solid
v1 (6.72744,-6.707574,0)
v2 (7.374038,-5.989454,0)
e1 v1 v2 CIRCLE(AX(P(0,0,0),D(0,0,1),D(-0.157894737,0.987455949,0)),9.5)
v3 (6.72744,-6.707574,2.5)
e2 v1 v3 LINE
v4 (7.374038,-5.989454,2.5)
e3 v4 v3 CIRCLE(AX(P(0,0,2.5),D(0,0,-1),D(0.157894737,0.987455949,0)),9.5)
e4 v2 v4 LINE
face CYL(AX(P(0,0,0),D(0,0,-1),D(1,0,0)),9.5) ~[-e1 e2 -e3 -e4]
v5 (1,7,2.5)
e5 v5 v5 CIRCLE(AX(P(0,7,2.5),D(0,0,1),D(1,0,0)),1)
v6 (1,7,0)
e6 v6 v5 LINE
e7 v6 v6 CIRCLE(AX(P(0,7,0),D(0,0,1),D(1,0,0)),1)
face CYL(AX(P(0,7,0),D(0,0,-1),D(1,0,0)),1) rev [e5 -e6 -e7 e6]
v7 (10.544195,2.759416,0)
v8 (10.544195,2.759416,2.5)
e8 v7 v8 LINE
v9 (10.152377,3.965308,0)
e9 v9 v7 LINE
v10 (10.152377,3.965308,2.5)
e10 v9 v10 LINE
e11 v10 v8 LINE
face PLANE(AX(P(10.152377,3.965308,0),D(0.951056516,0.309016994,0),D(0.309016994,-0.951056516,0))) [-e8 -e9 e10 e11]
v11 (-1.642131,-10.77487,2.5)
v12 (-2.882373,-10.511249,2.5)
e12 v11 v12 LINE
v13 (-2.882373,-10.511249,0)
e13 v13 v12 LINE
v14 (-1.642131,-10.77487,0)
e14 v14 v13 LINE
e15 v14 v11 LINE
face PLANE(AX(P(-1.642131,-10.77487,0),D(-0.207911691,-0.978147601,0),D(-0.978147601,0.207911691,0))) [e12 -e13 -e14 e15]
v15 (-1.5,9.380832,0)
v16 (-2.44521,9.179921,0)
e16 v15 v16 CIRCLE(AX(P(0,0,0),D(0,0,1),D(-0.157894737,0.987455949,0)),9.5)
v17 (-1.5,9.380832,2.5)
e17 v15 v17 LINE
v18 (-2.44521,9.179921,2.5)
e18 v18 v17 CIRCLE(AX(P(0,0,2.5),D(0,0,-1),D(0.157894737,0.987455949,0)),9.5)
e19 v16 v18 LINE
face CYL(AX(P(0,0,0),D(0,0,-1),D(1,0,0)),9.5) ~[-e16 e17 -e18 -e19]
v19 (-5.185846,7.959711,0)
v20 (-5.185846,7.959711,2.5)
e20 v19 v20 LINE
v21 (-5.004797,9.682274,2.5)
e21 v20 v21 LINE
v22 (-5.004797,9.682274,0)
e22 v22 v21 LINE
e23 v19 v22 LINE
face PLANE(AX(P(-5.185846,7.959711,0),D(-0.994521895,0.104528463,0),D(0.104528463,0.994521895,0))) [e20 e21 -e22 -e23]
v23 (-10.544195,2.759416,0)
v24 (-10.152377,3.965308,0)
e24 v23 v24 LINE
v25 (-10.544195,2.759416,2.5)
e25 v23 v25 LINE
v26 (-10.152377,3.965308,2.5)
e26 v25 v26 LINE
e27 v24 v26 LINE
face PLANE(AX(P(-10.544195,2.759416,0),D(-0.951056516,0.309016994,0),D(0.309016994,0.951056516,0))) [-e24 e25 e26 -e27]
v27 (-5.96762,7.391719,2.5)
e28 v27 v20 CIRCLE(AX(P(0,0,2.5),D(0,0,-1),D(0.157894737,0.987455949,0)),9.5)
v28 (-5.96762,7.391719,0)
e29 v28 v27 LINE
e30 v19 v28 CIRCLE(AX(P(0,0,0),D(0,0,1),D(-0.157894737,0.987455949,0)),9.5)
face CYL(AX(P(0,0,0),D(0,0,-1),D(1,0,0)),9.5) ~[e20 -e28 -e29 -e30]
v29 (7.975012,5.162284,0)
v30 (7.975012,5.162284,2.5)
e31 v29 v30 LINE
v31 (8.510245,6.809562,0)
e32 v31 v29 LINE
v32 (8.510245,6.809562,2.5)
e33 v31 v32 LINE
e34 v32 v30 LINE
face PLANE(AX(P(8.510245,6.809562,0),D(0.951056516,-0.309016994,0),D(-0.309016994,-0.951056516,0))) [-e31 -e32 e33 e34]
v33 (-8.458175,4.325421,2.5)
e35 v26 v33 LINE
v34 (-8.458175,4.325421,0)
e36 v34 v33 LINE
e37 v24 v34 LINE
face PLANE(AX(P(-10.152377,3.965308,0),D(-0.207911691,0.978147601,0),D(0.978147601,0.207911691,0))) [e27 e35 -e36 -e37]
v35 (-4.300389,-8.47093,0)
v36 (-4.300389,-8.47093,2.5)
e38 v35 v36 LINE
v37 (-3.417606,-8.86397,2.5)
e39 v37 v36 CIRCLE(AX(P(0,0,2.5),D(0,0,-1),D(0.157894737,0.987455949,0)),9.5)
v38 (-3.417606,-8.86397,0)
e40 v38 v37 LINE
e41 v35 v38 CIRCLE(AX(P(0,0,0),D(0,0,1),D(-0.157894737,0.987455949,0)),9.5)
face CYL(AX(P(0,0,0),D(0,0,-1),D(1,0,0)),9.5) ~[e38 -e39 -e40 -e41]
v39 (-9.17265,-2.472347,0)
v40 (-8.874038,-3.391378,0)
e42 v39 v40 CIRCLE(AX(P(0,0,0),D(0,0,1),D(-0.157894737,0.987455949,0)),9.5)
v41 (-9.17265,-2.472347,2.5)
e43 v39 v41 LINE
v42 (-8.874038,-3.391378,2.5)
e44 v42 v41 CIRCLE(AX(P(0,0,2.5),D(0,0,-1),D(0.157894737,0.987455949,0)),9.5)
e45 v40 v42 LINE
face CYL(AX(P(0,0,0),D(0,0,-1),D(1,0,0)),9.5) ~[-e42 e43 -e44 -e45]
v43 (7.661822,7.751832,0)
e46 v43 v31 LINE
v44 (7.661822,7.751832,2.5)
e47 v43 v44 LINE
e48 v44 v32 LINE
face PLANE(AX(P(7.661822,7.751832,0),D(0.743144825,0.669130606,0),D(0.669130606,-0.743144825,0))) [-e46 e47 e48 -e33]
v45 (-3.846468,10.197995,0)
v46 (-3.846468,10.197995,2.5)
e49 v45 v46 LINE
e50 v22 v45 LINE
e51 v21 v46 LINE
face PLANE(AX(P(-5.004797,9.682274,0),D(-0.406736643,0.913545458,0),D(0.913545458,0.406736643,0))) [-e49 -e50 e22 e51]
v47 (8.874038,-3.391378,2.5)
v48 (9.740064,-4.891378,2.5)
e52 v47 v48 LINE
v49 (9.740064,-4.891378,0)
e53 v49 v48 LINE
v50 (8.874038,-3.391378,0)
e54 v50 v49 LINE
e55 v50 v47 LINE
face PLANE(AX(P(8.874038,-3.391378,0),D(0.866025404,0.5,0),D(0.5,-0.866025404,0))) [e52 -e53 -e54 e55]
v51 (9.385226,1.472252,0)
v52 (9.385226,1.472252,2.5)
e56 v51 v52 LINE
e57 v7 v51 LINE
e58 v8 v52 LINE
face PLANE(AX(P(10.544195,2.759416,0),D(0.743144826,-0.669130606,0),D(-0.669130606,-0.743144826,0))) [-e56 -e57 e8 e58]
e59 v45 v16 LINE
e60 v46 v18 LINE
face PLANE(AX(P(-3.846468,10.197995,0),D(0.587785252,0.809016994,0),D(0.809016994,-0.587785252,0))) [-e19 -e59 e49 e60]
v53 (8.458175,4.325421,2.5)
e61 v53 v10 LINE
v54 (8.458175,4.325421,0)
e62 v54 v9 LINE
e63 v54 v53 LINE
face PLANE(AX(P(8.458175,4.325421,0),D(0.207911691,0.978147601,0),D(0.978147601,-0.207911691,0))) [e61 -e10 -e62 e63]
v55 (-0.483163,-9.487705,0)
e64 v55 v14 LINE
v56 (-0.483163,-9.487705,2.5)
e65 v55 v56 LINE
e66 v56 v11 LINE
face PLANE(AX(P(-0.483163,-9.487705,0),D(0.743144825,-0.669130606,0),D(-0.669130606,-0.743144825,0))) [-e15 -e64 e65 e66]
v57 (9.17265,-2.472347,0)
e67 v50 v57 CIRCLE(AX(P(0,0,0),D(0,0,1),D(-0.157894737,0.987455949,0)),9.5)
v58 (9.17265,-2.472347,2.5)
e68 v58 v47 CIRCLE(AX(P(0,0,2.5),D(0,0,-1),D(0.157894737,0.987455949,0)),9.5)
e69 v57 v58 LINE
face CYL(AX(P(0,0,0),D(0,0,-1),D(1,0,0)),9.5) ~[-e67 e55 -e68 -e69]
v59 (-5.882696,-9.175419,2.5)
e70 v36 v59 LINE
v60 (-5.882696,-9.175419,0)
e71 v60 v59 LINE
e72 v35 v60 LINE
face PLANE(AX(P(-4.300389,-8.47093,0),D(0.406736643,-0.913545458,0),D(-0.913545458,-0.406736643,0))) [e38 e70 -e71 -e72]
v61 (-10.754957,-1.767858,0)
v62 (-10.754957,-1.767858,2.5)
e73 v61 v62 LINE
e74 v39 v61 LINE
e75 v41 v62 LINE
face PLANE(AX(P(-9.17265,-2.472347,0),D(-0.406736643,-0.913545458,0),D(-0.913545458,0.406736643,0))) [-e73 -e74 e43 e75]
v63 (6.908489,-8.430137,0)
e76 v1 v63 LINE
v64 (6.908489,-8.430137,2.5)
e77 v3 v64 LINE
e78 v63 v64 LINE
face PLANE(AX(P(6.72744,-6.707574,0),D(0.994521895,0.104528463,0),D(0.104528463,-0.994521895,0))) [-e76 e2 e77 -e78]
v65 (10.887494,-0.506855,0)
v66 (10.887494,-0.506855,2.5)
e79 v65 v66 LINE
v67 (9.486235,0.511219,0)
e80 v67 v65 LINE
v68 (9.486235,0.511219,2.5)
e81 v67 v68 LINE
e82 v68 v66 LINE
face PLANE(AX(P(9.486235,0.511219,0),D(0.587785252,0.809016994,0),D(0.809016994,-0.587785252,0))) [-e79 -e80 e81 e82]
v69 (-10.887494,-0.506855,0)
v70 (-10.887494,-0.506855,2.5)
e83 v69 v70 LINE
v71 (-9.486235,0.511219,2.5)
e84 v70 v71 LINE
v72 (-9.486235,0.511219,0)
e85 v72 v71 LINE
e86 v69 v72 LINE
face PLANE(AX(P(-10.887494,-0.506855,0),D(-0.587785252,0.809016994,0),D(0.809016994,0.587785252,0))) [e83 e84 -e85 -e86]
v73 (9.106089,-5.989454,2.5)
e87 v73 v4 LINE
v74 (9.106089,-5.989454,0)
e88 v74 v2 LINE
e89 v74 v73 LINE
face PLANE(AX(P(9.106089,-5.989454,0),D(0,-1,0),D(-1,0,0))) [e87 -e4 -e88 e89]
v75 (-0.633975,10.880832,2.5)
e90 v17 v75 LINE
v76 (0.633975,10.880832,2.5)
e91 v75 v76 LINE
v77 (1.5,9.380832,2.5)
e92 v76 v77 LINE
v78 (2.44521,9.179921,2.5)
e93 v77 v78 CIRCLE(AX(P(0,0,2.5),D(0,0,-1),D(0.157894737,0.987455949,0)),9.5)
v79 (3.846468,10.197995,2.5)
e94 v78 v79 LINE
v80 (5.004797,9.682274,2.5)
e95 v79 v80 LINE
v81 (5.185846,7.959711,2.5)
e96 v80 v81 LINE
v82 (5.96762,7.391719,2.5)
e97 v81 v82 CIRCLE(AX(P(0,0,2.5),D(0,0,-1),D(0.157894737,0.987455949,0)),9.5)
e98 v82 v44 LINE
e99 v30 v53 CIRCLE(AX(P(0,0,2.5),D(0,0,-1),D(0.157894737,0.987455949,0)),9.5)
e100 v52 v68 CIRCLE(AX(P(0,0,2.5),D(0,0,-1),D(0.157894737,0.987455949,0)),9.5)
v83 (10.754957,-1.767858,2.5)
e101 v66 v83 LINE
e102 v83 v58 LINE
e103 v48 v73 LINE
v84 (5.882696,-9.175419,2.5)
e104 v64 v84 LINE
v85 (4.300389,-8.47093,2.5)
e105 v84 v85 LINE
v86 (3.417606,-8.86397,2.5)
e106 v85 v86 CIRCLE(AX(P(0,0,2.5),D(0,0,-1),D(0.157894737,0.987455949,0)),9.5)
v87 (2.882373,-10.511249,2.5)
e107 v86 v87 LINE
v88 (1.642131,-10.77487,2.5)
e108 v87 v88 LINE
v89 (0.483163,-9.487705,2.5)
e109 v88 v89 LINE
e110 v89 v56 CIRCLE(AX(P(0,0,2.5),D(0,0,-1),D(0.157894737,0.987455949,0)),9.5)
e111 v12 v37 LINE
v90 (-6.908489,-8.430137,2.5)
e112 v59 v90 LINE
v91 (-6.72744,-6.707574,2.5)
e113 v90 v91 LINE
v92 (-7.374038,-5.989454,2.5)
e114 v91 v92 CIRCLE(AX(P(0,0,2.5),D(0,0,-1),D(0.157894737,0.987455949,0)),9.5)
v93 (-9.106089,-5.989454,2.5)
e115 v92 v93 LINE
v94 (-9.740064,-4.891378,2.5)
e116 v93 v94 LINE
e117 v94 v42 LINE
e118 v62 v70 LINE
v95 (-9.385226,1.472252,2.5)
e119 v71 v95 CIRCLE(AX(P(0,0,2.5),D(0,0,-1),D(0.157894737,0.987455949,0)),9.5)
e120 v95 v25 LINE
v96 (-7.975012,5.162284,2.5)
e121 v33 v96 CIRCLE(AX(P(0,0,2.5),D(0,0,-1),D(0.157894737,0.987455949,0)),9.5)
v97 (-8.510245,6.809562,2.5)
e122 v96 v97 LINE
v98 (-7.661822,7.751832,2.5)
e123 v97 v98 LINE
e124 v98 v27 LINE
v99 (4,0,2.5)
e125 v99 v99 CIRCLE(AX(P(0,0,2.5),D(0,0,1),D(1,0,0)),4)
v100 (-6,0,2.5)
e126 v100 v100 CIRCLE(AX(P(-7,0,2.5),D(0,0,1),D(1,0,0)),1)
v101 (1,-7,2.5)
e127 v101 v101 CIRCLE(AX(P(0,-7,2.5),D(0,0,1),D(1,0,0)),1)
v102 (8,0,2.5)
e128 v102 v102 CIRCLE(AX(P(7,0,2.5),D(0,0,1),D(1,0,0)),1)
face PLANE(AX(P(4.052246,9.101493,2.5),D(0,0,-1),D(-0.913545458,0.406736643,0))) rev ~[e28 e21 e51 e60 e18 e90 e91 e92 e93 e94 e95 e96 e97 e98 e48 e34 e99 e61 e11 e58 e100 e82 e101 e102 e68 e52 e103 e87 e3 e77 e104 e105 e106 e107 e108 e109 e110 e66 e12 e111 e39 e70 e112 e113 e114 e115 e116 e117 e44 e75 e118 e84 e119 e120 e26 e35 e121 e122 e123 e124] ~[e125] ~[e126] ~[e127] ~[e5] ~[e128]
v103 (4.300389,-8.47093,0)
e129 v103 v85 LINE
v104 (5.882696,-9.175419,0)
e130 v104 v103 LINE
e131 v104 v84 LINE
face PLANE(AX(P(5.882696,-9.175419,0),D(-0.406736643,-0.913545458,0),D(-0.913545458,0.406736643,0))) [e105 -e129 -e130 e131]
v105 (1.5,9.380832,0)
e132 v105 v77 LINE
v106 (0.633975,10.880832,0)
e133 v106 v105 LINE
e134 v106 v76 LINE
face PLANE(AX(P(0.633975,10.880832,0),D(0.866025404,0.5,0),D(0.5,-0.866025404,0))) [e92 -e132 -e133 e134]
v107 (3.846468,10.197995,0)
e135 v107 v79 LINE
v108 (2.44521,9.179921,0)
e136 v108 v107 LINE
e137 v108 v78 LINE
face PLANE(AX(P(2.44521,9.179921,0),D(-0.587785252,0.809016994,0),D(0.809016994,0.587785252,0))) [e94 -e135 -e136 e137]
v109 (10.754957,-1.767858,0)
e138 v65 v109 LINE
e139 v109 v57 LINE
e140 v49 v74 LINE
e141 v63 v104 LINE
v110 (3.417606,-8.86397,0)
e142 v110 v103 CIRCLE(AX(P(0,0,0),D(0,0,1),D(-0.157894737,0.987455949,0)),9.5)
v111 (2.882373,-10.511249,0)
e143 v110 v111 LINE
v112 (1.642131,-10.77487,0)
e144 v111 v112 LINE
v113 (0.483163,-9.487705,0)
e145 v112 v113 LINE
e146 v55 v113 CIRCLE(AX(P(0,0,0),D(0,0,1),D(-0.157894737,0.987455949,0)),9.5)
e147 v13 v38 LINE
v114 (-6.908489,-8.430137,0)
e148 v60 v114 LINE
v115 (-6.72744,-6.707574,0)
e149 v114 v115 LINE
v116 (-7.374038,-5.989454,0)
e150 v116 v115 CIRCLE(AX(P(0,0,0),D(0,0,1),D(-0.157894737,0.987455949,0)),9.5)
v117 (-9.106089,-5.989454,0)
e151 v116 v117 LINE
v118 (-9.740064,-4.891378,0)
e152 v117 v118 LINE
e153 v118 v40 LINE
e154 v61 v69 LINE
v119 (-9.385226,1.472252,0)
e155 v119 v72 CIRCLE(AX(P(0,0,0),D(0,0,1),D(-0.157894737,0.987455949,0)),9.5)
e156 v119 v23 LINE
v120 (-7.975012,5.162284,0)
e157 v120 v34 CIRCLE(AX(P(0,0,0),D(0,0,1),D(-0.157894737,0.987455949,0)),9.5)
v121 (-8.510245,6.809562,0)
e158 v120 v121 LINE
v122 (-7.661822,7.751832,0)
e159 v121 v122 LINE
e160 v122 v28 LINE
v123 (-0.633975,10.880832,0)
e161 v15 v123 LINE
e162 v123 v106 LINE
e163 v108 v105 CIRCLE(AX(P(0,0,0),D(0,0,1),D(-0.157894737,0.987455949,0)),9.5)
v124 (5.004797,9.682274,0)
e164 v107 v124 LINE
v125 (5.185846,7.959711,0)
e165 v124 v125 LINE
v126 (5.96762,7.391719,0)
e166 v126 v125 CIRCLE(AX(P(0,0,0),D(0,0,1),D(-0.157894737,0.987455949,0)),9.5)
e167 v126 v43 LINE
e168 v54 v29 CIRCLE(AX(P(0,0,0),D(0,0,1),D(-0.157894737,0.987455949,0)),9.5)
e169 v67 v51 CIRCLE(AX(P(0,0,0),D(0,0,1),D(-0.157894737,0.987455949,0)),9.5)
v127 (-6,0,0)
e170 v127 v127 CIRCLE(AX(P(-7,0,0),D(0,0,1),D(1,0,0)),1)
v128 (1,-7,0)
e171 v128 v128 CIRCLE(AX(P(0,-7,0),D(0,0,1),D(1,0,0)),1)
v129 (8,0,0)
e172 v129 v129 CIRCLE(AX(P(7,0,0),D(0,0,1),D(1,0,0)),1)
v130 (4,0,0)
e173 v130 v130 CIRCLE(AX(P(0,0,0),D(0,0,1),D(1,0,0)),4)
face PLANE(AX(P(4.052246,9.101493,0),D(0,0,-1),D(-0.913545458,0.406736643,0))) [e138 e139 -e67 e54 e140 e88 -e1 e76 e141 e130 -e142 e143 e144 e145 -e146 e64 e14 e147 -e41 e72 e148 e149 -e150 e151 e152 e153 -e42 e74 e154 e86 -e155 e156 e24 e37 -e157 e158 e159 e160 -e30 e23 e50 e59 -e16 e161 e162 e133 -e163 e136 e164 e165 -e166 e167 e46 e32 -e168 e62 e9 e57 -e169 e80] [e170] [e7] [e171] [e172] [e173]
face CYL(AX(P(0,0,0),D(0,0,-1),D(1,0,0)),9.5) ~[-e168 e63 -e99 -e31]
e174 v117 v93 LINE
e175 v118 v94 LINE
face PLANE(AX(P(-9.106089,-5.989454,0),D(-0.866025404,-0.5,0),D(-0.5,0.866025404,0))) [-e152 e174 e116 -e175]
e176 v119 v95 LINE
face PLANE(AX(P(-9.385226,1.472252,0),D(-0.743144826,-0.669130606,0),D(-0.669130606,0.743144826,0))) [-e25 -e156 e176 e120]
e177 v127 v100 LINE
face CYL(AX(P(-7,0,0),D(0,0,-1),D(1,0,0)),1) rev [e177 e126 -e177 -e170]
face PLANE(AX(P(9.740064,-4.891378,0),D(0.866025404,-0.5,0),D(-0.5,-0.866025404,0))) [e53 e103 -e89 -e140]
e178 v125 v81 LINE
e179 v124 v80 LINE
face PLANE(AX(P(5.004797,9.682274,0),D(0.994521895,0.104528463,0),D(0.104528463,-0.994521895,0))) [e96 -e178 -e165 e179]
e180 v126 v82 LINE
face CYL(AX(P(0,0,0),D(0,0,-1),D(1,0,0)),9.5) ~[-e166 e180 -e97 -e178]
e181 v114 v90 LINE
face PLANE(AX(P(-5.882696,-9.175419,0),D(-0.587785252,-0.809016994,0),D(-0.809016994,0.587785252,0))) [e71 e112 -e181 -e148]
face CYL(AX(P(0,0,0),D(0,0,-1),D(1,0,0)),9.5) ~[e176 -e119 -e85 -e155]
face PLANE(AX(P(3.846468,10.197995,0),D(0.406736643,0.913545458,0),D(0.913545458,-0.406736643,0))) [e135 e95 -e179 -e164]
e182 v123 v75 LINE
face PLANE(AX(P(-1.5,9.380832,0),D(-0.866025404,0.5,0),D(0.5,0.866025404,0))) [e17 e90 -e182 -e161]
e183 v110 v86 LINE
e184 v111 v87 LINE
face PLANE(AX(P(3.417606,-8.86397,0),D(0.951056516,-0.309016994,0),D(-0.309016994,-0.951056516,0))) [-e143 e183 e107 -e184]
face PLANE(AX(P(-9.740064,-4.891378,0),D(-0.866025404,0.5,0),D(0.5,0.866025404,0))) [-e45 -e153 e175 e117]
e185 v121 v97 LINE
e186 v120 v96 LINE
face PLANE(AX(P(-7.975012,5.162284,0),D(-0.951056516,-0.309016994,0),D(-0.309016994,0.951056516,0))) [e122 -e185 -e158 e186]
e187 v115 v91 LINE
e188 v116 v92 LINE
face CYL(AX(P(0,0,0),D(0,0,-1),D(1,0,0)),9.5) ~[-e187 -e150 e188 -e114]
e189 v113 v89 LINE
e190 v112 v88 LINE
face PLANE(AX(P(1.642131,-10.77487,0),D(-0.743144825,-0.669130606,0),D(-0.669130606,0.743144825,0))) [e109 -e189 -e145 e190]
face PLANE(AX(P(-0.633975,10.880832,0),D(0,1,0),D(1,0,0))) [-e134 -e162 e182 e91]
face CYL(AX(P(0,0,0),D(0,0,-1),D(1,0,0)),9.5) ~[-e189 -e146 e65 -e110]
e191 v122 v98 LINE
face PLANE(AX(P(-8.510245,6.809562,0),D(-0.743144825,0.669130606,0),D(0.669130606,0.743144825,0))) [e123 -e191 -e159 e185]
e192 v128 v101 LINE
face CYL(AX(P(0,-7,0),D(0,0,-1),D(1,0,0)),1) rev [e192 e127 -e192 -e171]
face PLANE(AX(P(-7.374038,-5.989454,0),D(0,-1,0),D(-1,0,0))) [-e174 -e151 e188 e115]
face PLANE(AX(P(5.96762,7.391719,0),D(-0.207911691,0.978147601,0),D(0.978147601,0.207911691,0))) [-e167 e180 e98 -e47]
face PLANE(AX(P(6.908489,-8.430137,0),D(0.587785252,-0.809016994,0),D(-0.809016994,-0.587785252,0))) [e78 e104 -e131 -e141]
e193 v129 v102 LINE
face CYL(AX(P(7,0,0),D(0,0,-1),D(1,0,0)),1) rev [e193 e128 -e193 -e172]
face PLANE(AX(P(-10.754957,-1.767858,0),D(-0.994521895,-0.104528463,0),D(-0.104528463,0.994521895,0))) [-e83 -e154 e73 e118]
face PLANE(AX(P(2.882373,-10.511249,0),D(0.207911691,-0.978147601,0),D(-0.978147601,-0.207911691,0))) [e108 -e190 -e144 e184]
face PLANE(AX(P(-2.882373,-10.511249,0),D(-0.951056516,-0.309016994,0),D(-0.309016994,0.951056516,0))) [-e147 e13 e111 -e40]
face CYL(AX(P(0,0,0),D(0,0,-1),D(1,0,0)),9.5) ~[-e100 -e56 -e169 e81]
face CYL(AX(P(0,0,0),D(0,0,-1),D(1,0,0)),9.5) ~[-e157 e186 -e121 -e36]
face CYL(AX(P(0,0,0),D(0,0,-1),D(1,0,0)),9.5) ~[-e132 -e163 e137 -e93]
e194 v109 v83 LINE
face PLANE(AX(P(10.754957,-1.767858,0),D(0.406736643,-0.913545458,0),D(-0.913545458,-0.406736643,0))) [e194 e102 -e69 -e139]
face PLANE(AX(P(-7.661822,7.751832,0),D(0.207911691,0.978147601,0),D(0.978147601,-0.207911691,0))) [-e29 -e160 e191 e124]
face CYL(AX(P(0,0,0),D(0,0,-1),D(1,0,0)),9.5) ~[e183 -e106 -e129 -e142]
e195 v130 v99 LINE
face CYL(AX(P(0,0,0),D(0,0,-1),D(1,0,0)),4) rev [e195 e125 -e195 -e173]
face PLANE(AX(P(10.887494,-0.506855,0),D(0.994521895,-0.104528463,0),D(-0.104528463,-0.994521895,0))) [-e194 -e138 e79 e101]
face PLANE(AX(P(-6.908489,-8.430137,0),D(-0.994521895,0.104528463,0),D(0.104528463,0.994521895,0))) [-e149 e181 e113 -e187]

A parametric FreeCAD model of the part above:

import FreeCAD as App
import Part
import Sketcher

V = App.Vector
Q = App.Units.Quantity


def add_polygon(sketch, points):
    """Adds a closed chain of lines whose ends are joined by coincident constraints."""
    first, n = sketch.GeometryCount, len(points)
    for a, b in zip(points, points[1:] + points[:1]):
        sketch.addGeometry(Part.LineSegment(App.Vector(*a, 0), App.Vector(*b, 0)), False)
    for i in range(n):
        sketch.addConstraint(Sketcher.Constraint("Coincident", first + i, 2, first + (i + 1) % n, 1))

doc = App.newDocument("Part")
params = doc.addObject("Spreadsheet::Sheet", "Params")
for row, (alias, value) in enumerate([
    ("sketch1_diameter", "19 mm"),
    ("sketch1_diameter2", "2 mm"),
    ("sketch1_diameter3", "8 mm"),
    ("pad1_length", "2.5 mm"),
    ("sketch2_width", "3 mm"),
    ("pad2_length", "2.5 mm"),
], start=1):
    params.set(f"A{row}", alias)
    params.set(f"B{row}", "=" + value)
    params.setAlias(f"B{row}", alias)

body = doc.addObject("PartDesign::Body", "Body")

# Sketch on XY plane
sketch1 = doc.addObject("Sketcher::SketchObject", "Sketch")
body.addObject(sketch1)
sketch1.AttachmentSupport = (doc.XY_Plane, [""])
sketch1.MapMode = "FlatFace"
sketch1.addGeometry([
    Part.Circle(V(0, 0, 0), V(0, 0, 1), 9.5),  # 0
    Part.Circle(V(0, -7, 0), V(0, 0, 1), 1),  # 1
    Part.Circle(V(-7, 0, 0), V(0, 0, 1), 1),  # 2
    Part.Circle(V(0, 0, 0), V(0, 0, 1), 4),  # 3
    Part.Circle(V(7, 0, 0), V(0, 0, 1), 1),  # 4
    Part.Circle(V(0, 7, 0), V(0, 0, 1), 1),  # 5
], False)
sketch1.addConstraint([
    Sketcher.Constraint("Coincident", 0, 3, -1, 1),
    Sketcher.Constraint("Coincident", 3, 3, -1, 1),
    Sketcher.Constraint("Equal", 1, 2),
    Sketcher.Constraint("Equal", 2, 4),
    Sketcher.Constraint("Equal", 4, 5),
    Sketcher.Constraint("Symmetric", 2, 3, 4, 3, -1, 1),
    Sketcher.Constraint("Symmetric", 1, 3, 5, 3, -1, 1),
    Sketcher.Constraint("PointOnObject", 1, 3, -2),
    Sketcher.Constraint("PointOnObject", 2, 3, -1),
    Sketcher.Constraint("Diameter", 0, Q("19 mm")),
    Sketcher.Constraint("Diameter", 1, Q("2 mm")),
    Sketcher.Constraint("Diameter", 3, Q("8 mm")),
    Sketcher.Constraint("DistanceY", 1, 3, -1, 1, Q("7 mm")),
    Sketcher.Constraint("DistanceX", 2, 3, -1, 1, Q("7 mm")),
])
sketch1.setExpression("Constraints[9]", "Params.sketch1_diameter")
sketch1.setExpression("Constraints[10]", "Params.sketch1_diameter2")
sketch1.setExpression("Constraints[11]", "Params.sketch1_diameter3")
pad1 = doc.addObject("PartDesign::Pad", "Pad")
body.addObject(pad1)
pad1.Profile = sketch1
pad1.setExpression("Length", "Params.pad1_length")

# Sketch on XY plane
sketch2 = doc.addObject("Sketcher::SketchObject", "Sketch001")
body.addObject(sketch2)
sketch2.AttachmentSupport = (doc.XY_Plane, [""])
sketch2.MapMode = "FlatFace"
add_polygon(sketch2, [(-0.633975, 10.880832), (-1.5, 9.380832), (1.5, 9.380832), (0.633975, 10.880832)])  # lines 0-3
sketch2.addConstraint([
    Sketcher.Constraint("Horizontal", 1),
    Sketcher.Constraint("Horizontal", 3),
    Sketcher.Constraint("Equal", 0, 2),
    Sketcher.Constraint("DistanceX", 1, 1, 1, 2, Q("3 mm")),
    Sketcher.Constraint("Angle", 0, Q("-120 deg")),
    Sketcher.Constraint("DistanceX", 0, 2, -1, 1, Q("1.5 mm")),
    Sketcher.Constraint("DistanceY", 1, 2, 2, 2, Q("1.5 mm")),
    Sketcher.Constraint("DistanceY", -1, 1, 0, 2, Q("9.380832 mm")),
])
sketch2.setExpression("Constraints[7]", "Params.sketch2_width")
pad2 = doc.addObject("PartDesign::Pad", "Pad001")
body.addObject(pad2)
pad2.Profile = sketch2
pad2.setExpression("Length", "Params.pad2_length")
doc.recompute()

polarpattern = doc.addObject("PartDesign::PolarPattern", "PolarPattern")
body.addObject(polarpattern)
polarpattern.Originals = [pad2]
polarpattern.Axis = (doc.Z_Axis, [""])
polarpattern.Angle = 360
polarpattern.Occurrences = 15
body.Tip = polarpattern

doc.recompute()
